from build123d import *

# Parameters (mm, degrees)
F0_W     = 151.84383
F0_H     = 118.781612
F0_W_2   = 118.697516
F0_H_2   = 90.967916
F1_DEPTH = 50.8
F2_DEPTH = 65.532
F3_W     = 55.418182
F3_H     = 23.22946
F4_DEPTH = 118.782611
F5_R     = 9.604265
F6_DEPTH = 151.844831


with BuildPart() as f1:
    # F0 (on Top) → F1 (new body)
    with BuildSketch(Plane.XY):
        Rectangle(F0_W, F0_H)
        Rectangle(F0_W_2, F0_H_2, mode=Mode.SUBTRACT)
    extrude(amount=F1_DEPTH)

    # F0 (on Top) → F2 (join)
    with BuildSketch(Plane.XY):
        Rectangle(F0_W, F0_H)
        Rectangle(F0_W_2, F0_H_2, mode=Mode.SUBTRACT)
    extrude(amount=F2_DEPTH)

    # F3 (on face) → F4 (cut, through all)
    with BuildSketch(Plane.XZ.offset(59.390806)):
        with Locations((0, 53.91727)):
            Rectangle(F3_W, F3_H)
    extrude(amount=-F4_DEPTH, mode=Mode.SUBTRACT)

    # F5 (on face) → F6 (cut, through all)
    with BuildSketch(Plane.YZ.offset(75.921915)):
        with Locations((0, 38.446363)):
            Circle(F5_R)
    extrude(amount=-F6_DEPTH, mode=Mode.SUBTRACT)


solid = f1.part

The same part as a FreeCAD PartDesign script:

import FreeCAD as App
import Part
import Sketcher
from FreeCAD import Vector
Q = App.Units.Quantity

doc = App.newDocument("Part")
body = doc.addObject("PartDesign::Body", "Body")

# Sketch on XY plane
sketch1 = body.newObject("Sketcher::SketchObject", "Sketch")
sketch1.AttachmentSupport = (doc.getObject("XY_Plane"), [""])
sketch1.MapMode = "FlatFace"
sketch1.addGeometry([
    Part.LineSegment(Vector(-75.921915, 59.390806, 0), Vector(-75.921915, -59.390806, 0)),  # 0
    Part.LineSegment(Vector(-75.921915, -59.390806, 0), Vector(75.921915, -59.390806, 0)),  # 1
    Part.LineSegment(Vector(75.921915, -59.390806, 0), Vector(75.921915, 59.390806, 0)),  # 2
    Part.LineSegment(Vector(75.921915, 59.390806, 0), Vector(-75.921915, 59.390806, 0)),  # 3
    Part.LineSegment(Vector(59.348758, -45.483958, 0), Vector(-59.348758, -45.483958, 0)),  # 4
    Part.LineSegment(Vector(-59.348758, -45.483958, 0), Vector(-59.348758, 45.483958, 0)),  # 5
    Part.LineSegment(Vector(-59.348758, 45.483958, 0), Vector(59.348758, 45.483958, 0)),  # 6
    Part.LineSegment(Vector(59.348758, 45.483958, 0), Vector(59.348758, -45.483958, 0)),  # 7
], False)
sketch1.addConstraint([
    Sketcher.Constraint("Coincident", 0, 2, 1, 1),
    Sketcher.Constraint("Coincident", 1, 2, 2, 1),
    Sketcher.Constraint("Coincident", 2, 2, 3, 1),
    Sketcher.Constraint("Coincident", 3, 2, 0, 1),
    Sketcher.Constraint("Coincident", 4, 2, 5, 1),
    Sketcher.Constraint("Coincident", 5, 2, 6, 1),
    Sketcher.Constraint("Coincident", 6, 2, 7, 1),
    Sketcher.Constraint("Coincident", 7, 2, 4, 1),
    Sketcher.Constraint("Vertical", 0),
    Sketcher.Constraint("Horizontal", 1),
    Sketcher.Constraint("Vertical", 2),
    Sketcher.Constraint("Horizontal", 3),
    Sketcher.Constraint("Horizontal", 4),
    Sketcher.Constraint("Vertical", 5),
    Sketcher.Constraint("Horizontal", 6),
    Sketcher.Constraint("Vertical", 7),
    Sketcher.Constraint("Symmetric", 0, 2, 2, 2, -1, 1),
    Sketcher.Constraint("Symmetric", 4, 2, 6, 2, -1, 1),
    Sketcher.Constraint("DistanceX", 1, 1, 1, 2, 151.84383),
    Sketcher.Constraint("DistanceY", 0, 2, 0, 1, 118.781612),
    Sketcher.Constraint("DistanceX", 4, 2, 4, 1, 118.697516),
    Sketcher.Constraint("DistanceY", 5, 1, 5, 2, 90.967916),
])
pad1 = body.newObject("PartDesign::Pad", "Pad")
pad1.Profile = sketch1
pad1.Length = Q("2 in")

# Sketch on XY plane
sketch2 = body.newObject("Sketcher::SketchObject", "Sketch001")
sketch2.AttachmentSupport = (doc.getObject("XY_Plane"), [""])
sketch2.MapMode = "FlatFace"
sketch2.addGeometry([
    Part.LineSegment(Vector(-75.921915, 59.390806, 0), Vector(-75.921915, -59.390806, 0)),  # 0
    Part.LineSegment(Vector(-75.921915, -59.390806, 0), Vector(75.921915, -59.390806, 0)),  # 1
    Part.LineSegment(Vector(75.921915, -59.390806, 0), Vector(75.921915, 59.390806, 0)),  # 2
    Part.LineSegment(Vector(75.921915, 59.390806, 0), Vector(-75.921915, 59.390806, 0)),  # 3
    Part.LineSegment(Vector(59.348758, -45.483958, 0), Vector(-59.348758, -45.483958, 0)),  # 4
    Part.LineSegment(Vector(-59.348758, -45.483958, 0), Vector(-59.348758, 45.483958, 0)),  # 5
    Part.LineSegment(Vector(-59.348758, 45.483958, 0), Vector(59.348758, 45.483958, 0)),  # 6
    Part.LineSegment(Vector(59.348758, 45.483958, 0), Vector(59.348758, -45.483958, 0)),  # 7
], False)
sketch2.addConstraint([
    Sketcher.Constraint("Coincident", 0, 2, 1, 1),
    Sketcher.Constraint("Coincident", 1, 2, 2, 1),
    Sketcher.Constraint("Coincident", 2, 2, 3, 1),
    Sketcher.Constraint("Coincident", 3, 2, 0, 1),
    Sketcher.Constraint("Coincident", 4, 2, 5, 1),
    Sketcher.Constraint("Coincident", 5, 2, 6, 1),
    Sketcher.Constraint("Coincident", 6, 2, 7, 1),
    Sketcher.Constraint("Coincident", 7, 2, 4, 1),
    Sketcher.Constraint("Vertical", 0),
    Sketcher.Constraint("Horizontal", 1),
    Sketcher.Constraint("Vertical", 2),
    Sketcher.Constraint("Horizontal", 3),
    Sketcher.Constraint("Horizontal", 4),
    Sketcher.Constraint("Vertical", 5),
    Sketcher.Constraint("Horizontal", 6),
    Sketcher.Constraint("Vertical", 7),
    Sketcher.Constraint("Symmetric", 0, 2, 2, 2, -1, 1),
    Sketcher.Constraint("Symmetric", 4, 2, 6, 2, -1, 1),
    Sketcher.Constraint("DistanceX", 1, 1, 1, 2, 151.84383),
    Sketcher.Constraint("DistanceY", 0, 2, 0, 1, 118.781612),
    Sketcher.Constraint("DistanceX", 4, 2, 4, 1, 118.697516),
    Sketcher.Constraint("DistanceY", 5, 1, 5, 2, 90.967916),
])
pad2 = body.newObject("PartDesign::Pad", "Pad001")
pad2.Profile = sketch2
pad2.Length = Q("2.58 in")

# Sketch on XZ plane
sketch3 = body.newObject("Sketcher::SketchObject", "Sketch002")
sketch3.AttachmentSupport = (doc.getObject("XZ_Plane"), [""])
sketch3.MapMode = "FlatFace"
sketch3.AttachmentOffset = App.Placement(Vector(0, 0, 59.390806), App.Rotation())
sketch3.addGeometry([
    Part.LineSegment(Vector(-27.709091, 65.532, 0), Vector(-27.709091, 42.30254, 0)),
    Part.LineSegment(Vector(-27.709091, 42.30254, 0), Vector(27.709091, 42.30254, 0)),
    Part.LineSegment(Vector(27.709091, 42.30254, 0), Vector(27.709091, 65.532, 0)),
    Part.LineSegment(Vector(27.709091, 65.532, 0), Vector(-27.709091, 65.532, 0)),
], False)
sketch3.addConstraint([
    Sketcher.Constraint("Coincident", 0, 2, 1, 1),
    Sketcher.Constraint("Coincident", 1, 2, 2, 1),
    Sketcher.Constraint("Coincident", 2, 2, 3, 1),
    Sketcher.Constraint("Coincident", 3, 2, 0, 1),
    Sketcher.Constraint("Vertical", 0),
    Sketcher.Constraint("Horizontal", 1),
    Sketcher.Constraint("Vertical", 2),
    Sketcher.Constraint("Horizontal", 3),
    Sketcher.Constraint("DistanceY", -1, 1, 2, 2, Q("2.58 in")),
    Sketcher.Constraint("DistanceY", 0, 2, 0, 1, 23.22946),
    Sketcher.Constraint("DistanceX", 1, 1, 1, 2, 55.418182),
    Sketcher.Constraint("DistanceX", 0, 2, -1, 1, 27.709091),
])
pocket1 = body.newObject("PartDesign::Pocket", "Pocket")
pocket1.Profile = sketch3
pocket1.Type = "ThroughAll"

# Sketch on YZ plane
sketch4 = body.newObject("Sketcher::SketchObject", "Sketch003")
sketch4.AttachmentSupport = (doc.getObject("YZ_Plane"), [""])
sketch4.MapMode = "FlatFace"
sketch4.AttachmentOffset = App.Placement(Vector(0, 0, 75.921915), App.Rotation())
sketch4.addGeometry(Part.Circle(Vector(0, 38.446363, 0), Vector(0, 0, 1), 9.604265), False)
sketch4.addConstraint([
    Sketcher.Constraint("PointOnObject", 0, 3, -2),
    Sketcher.Constraint("Diameter", 0, 19.20853),
    Sketcher.Constraint("DistanceY", -1, 1, 0, 3, 38.446363),
])
pocket2 = body.newObject("PartDesign::Pocket", "Pocket001")
pocket2.Profile = sketch4
pocket2.Type = "ThroughAll"

doc.recompute()
